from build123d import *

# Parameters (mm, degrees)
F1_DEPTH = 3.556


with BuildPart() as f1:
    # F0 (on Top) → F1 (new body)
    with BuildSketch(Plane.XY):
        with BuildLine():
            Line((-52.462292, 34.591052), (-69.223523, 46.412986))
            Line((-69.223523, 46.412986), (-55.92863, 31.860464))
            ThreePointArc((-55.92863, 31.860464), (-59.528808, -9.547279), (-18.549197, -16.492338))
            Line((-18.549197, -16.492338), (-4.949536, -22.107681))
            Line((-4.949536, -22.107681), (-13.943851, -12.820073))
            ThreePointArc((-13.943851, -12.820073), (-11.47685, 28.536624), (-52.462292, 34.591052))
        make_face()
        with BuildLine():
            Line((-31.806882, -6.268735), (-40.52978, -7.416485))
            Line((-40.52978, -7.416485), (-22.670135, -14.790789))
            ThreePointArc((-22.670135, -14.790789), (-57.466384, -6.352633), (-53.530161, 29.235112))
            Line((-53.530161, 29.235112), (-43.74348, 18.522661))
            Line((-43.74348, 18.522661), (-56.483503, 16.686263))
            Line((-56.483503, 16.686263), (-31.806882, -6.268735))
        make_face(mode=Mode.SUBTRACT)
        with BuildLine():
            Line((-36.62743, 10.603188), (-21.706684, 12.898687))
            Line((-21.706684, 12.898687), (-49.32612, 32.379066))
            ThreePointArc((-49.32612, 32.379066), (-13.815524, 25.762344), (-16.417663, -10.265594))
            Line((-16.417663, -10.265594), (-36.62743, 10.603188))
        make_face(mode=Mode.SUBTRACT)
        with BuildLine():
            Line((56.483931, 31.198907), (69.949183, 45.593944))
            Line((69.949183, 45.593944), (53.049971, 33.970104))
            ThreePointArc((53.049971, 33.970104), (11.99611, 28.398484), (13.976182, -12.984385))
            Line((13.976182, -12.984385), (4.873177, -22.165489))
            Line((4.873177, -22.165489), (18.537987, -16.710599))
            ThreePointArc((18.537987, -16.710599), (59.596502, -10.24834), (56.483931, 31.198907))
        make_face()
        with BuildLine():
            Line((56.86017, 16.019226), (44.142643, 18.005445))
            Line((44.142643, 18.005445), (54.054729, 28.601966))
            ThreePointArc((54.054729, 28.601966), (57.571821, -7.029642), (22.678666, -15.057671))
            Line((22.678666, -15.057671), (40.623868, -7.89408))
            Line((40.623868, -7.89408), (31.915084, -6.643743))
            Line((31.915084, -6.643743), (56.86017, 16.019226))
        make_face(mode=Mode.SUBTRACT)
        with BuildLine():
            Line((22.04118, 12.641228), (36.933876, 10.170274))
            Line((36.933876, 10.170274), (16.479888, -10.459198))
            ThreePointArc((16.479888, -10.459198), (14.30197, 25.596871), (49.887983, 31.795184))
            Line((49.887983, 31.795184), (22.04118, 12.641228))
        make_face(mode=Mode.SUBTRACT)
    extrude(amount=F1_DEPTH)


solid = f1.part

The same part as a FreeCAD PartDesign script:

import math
import FreeCAD as App
import Part
import Sketcher
from FreeCAD import Vector
Q = App.Units.Quantity

doc = App.newDocument("Part")
body = doc.addObject("PartDesign::Body", "Body")
body.AllowCompound = True

# Sketch on XY plane
sketch1 = body.newObject("Sketcher::SketchObject", "Sketch")
sketch1.AttachmentSupport = (doc.getObject("XY_Plane"), [""])
sketch1.MapMode = "FlatFace"
sketch1.addGeometry([
    Part.LineSegment(Vector(-52, 35, 0), Vector(-69, 46, 0)),  # 0
    Part.LineSegment(Vector(-69, 46, 0), Vector(-56, 32, 0)),  # 1
    Part.ArcOfCircle(Part.Circle(Vector(-35, 9, 0), Vector(0, 0, 1), 31), math.radians(132), math.radians(303)),  # 2
    Part.LineSegment(Vector(-19, -16, 0), Vector(-5, -22, 0)),  # 3
    Part.LineSegment(Vector(-5, -22, 0), Vector(-14, -13, 0)),  # 4
    Part.ArcOfCircle(Part.Circle(Vector(-35, 9, 0), Vector(0, 0, 1), 31), math.radians(-46), math.radians(124)),  # 5
    Part.LineSegment(Vector(-56, 17, 0), Vector(-32, -6, 0)),  # 6
    Part.LineSegment(Vector(-32, -6, 0), Vector(-41, -7, 0)),  # 7
    Part.LineSegment(Vector(-41, -7, 0), Vector(-23, -15, 0)),  # 8
    Part.ArcOfCircle(Part.Circle(Vector(-35, 9, 0), Vector(0, 0, 1), 27), math.radians(132), math.radians(298)),  # 9
    Part.LineSegment(Vector(-54, 29, 0), Vector(-44, 19, 0)),  # 10
    Part.LineSegment(Vector(-44, 19, 0), Vector(-56, 17, 0)),  # 11
    Part.LineSegment(Vector(-16, -10, 0), Vector(-37, 11, 0)),  # 12
    Part.LineSegment(Vector(-37, 11, 0), Vector(-22, 13, 0)),  # 13
    Part.LineSegment(Vector(-22, 13, 0), Vector(-49, 32, 0)),  # 14
    Part.ArcOfCircle(Part.Circle(Vector(-35, 9, 0), Vector(0, 0, 1), 27), math.radians(-46), math.radians(121)),  # 15
    Part.LineSegment(Vector(56, 31, 0), Vector(70, 46, 0)),  # 16
    Part.LineSegment(Vector(70, 46, 0), Vector(53, 34, 0)),  # 17
    Part.ArcOfCircle(Part.Circle(Vector(36, 9, 0), Vector(0, 0, 1), 31), math.radians(55), math.radians(225)),  # 18
    Part.LineSegment(Vector(14, -13, 0), Vector(5, -22, 0)),  # 19
    Part.LineSegment(Vector(5, -22, 0), Vector(19, -17, 0)),  # 20
    Part.ArcOfCircle(Part.Circle(Vector(36, 9, 0), Vector(0, 0, 1), 31), math.radians(-124), math.radians(47)),  # 21
    Part.LineSegment(Vector(32, -7, 0), Vector(57, 16, 0)),  # 22
    Part.LineSegment(Vector(57, 16, 0), Vector(44, 18, 0)),  # 23
    Part.LineSegment(Vector(44, 18, 0), Vector(54, 29, 0)),  # 24
    Part.ArcOfCircle(Part.Circle(Vector(36, 9, 0), Vector(0, 0, 1), 27), math.radians(-118), math.radians(47)),  # 25
    Part.LineSegment(Vector(23, -15, 0), Vector(41, -8, 0)),  # 26
    Part.LineSegment(Vector(41, -8, 0), Vector(32, -7, 0)),  # 27
    Part.LineSegment(Vector(50, 32, 0), Vector(22, 13, 0)),  # 28
    Part.LineSegment(Vector(22, 13, 0), Vector(37, 10, 0)),  # 29
    Part.LineSegment(Vector(37, 10, 0), Vector(16, -10, 0)),  # 30
    Part.ArcOfCircle(Part.Circle(Vector(36, 9, 0), Vector(0, 0, 1), 27), math.radians(58), math.radians(225)),  # 31
], False)
sketch1.addConstraint([
    Sketcher.Constraint("Coincident", 0, 2, 1, 1),
    Sketcher.Constraint("Coincident", 1, 2, 2, 1),
    Sketcher.Constraint("Coincident", 2, 2, 3, 1),
    Sketcher.Constraint("Coincident", 3, 2, 4, 1),
    Sketcher.Constraint("Coincident", 4, 2, 5, 1),
    Sketcher.Constraint("Coincident", 5, 2, 0, 1),
    Sketcher.Constraint("Coincident", 6, 2, 7, 1),
    Sketcher.Constraint("Coincident", 7, 2, 8, 1),
    Sketcher.Constraint("Coincident", 8, 2, 9, 2),
    Sketcher.Constraint("Coincident", 9, 1, 10, 1),
    Sketcher.Constraint("Coincident", 10, 2, 11, 1),
    Sketcher.Constraint("Coincident", 11, 2, 6, 1),
    Sketcher.Constraint("Coincident", 12, 2, 13, 1),
    Sketcher.Constraint("Coincident", 13, 2, 14, 1),
    Sketcher.Constraint("Coincident", 14, 2, 15, 2),
    Sketcher.Constraint("Coincident", 15, 1, 12, 1),
    Sketcher.Constraint("Coincident", 16, 2, 17, 1),
    Sketcher.Constraint("Coincident", 17, 2, 18, 1),
    Sketcher.Constraint("Coincident", 18, 2, 19, 1),
    Sketcher.Constraint("Coincident", 19, 2, 20, 1),
    Sketcher.Constraint("Coincident", 20, 2, 21, 1),
    Sketcher.Constraint("Coincident", 21, 2, 16, 1),
    Sketcher.Constraint("Coincident", 22, 2, 23, 1),
    Sketcher.Constraint("Coincident", 23, 2, 24, 1),
    Sketcher.Constraint("Coincident", 24, 2, 25, 2),
    Sketcher.Constraint("Coincident", 25, 1, 26, 1),
    Sketcher.Constraint("Coincident", 26, 2, 27, 1),
    Sketcher.Constraint("Coincident", 27, 2, 22, 1),
    Sketcher.Constraint("Coincident", 28, 2, 29, 1),
    Sketcher.Constraint("Coincident", 29, 2, 30, 1),
    Sketcher.Constraint("Coincident", 30, 2, 31, 2),
    Sketcher.Constraint("Coincident", 31, 1, 28, 1),
    Sketcher.Constraint("Coincident", 5, 3, 2, 3),
    Sketcher.Constraint("Coincident", 9, 3, 2, 3),
    Sketcher.Constraint("Coincident", 15, 3, 2, 3),
    Sketcher.Constraint("Coincident", 21, 3, 18, 3),
    Sketcher.Constraint("Coincident", 25, 3, 18, 3),
    Sketcher.Constraint("Coincident", 31, 3, 18, 3),
    Sketcher.Constraint("Equal", 2, 5),
    Sketcher.Constraint("Equal", 9, 15),
    Sketcher.Constraint("Equal", 5, 18),
    Sketcher.Constraint("Equal", 18, 21),
    Sketcher.Constraint("Equal", 15, 25),
    Sketcher.Constraint("Equal", 25, 31),
    Sketcher.Constraint("Parallel", 3, 8),
    Sketcher.Constraint("Parallel", 1, 10),
    Sketcher.Constraint("Parallel", 4, 12),
    Sketcher.Constraint("Parallel", 0, 14),
    Sketcher.Constraint("Parallel", 16, 24),
    Sketcher.Constraint("Parallel", 20, 26),
    Sketcher.Constraint("Parallel", 17, 28),
    Sketcher.Constraint("Parallel", 19, 30),
    Sketcher.Constraint("Equal", 1, 16),
    Sketcher.Constraint("Equal", 0, 17),
    Sketcher.Constraint("Equal", 4, 19),
    Sketcher.Constraint("Equal", 3, 20),
    Sketcher.Constraint("Equal", 6, 22),
    Sketcher.Constraint("Equal", 11, 23),
    Sketcher.Constraint("Equal", 10, 24),
    Sketcher.Constraint("Equal", 8, 26),
    Sketcher.Constraint("Equal", 7, 27),
    Sketcher.Constraint("Equal", 14, 28),
    Sketcher.Constraint("Equal", 13, 29),
    Sketcher.Constraint("Equal", 12, 30),
    Sketcher.Constraint("Radius", 2, Q("30.65911 mm")),
    Sketcher.Constraint("Radius", 9, Q("27.103113 mm")),
    Sketcher.Constraint("DistanceX", 10, 2, 9, 3, Q("0.3335002 in")),
    Sketcher.Constraint("DistanceY", 19, 2, 15, 1, Q("0.4684998 in")),
    Sketcher.Constraint("Distance", 0, Q("20.510899 mm")),
    Sketcher.Constraint("Distance", 14, Q("33.798201 mm")),
    Sketcher.Constraint("DistanceY", 20, 2, -1, 1, Q("16.710599 mm")),
    Sketcher.Constraint("DistanceY", 30, 2, -1, 1, Q("10.459198 mm")),
    Sketcher.Constraint("DistanceY", 9, 3, 5, 2, Q("25.386899 mm")),
    Sketcher.Constraint("DistanceX", 7, 2, 6, 2, Q("8.722898 mm")),
    Sketcher.Constraint("DistanceX", 8, 2, 3, 2, Q("17.720599 mm")),
    Sketcher.Constraint("DistanceY", 11, 2, 1, 2, Q("15.174201 mm")),
    Sketcher.Constraint("DistanceY", 12, 2, 13, 2, Q("2.295499 mm")),
    Sketcher.Constraint("DistanceX", 17, 2, 22, 2, Q("3.810199 mm")),
    Sketcher.Constraint("DistanceX", 24, 2, 21, 2, Q("2.429202 mm")),
    Sketcher.Constraint("DistanceX", 30, 2, 20, 2, Q("2.058099 mm")),
    Sketcher.Constraint("Distance", 10, Q("14.509849 mm")),
    Sketcher.Constraint("Distance", 12, Q("29.050658 mm")),
    Sketcher.Constraint("Distance", 13, Q("15.09629 mm")),
    Sketcher.Constraint("DistanceX", -1, 1, 18, 3, Q("35.562648 mm")),
    Sketcher.Constraint("DistanceX", 1, 2, -1, 1, Q("55.92863 mm")),
    Sketcher.Constraint("DistanceY", 2, 2, -1, 1, Q("16.492338 mm")),
    Sketcher.Constraint("DistanceY", 3, 2, -1, 1, Q("22.107681 mm")),
    Sketcher.Constraint("DistanceX", 4, 2, -1, 1, Q("13.943851 mm")),
    Sketcher.Constraint("DistanceX", 5, 2, -1, 1, Q("52.462292 mm")),
    Sketcher.Constraint("DistanceY", -1, 1, 5, 2, Q("34.591052 mm")),
    Sketcher.Constraint("DistanceX", 7, 2, -1, 1, Q("40.52978 mm")),
    Sketcher.Constraint("DistanceY", 8, 2, -1, 1, Q("14.790789 mm")),
    Sketcher.Constraint("DistanceX", -1, 1, 17, 2, Q("53.049971 mm")),
    Sketcher.Constraint("DistanceX", -1, 1, 18, 2, Q("13.976182 mm")),
    Sketcher.Constraint("DistanceX", -1, 1, 21, 2, Q("56.483931 mm")),
    Sketcher.Constraint("DistanceY", 25, 1, -1, 1, Q("15.057671 mm")),
    Sketcher.Constraint("DistanceY", 6, 2, 9, 3, Q("15.472888 mm")),
    Sketcher.Constraint("DistanceX", 11, 2, 5, 2, Q("4.021211 mm")),
])
pad1 = body.newObject("PartDesign::Pad", "Pad")
pad1.Profile = sketch1
pad1.Length = Q("0.14 in")

doc.recompute()
